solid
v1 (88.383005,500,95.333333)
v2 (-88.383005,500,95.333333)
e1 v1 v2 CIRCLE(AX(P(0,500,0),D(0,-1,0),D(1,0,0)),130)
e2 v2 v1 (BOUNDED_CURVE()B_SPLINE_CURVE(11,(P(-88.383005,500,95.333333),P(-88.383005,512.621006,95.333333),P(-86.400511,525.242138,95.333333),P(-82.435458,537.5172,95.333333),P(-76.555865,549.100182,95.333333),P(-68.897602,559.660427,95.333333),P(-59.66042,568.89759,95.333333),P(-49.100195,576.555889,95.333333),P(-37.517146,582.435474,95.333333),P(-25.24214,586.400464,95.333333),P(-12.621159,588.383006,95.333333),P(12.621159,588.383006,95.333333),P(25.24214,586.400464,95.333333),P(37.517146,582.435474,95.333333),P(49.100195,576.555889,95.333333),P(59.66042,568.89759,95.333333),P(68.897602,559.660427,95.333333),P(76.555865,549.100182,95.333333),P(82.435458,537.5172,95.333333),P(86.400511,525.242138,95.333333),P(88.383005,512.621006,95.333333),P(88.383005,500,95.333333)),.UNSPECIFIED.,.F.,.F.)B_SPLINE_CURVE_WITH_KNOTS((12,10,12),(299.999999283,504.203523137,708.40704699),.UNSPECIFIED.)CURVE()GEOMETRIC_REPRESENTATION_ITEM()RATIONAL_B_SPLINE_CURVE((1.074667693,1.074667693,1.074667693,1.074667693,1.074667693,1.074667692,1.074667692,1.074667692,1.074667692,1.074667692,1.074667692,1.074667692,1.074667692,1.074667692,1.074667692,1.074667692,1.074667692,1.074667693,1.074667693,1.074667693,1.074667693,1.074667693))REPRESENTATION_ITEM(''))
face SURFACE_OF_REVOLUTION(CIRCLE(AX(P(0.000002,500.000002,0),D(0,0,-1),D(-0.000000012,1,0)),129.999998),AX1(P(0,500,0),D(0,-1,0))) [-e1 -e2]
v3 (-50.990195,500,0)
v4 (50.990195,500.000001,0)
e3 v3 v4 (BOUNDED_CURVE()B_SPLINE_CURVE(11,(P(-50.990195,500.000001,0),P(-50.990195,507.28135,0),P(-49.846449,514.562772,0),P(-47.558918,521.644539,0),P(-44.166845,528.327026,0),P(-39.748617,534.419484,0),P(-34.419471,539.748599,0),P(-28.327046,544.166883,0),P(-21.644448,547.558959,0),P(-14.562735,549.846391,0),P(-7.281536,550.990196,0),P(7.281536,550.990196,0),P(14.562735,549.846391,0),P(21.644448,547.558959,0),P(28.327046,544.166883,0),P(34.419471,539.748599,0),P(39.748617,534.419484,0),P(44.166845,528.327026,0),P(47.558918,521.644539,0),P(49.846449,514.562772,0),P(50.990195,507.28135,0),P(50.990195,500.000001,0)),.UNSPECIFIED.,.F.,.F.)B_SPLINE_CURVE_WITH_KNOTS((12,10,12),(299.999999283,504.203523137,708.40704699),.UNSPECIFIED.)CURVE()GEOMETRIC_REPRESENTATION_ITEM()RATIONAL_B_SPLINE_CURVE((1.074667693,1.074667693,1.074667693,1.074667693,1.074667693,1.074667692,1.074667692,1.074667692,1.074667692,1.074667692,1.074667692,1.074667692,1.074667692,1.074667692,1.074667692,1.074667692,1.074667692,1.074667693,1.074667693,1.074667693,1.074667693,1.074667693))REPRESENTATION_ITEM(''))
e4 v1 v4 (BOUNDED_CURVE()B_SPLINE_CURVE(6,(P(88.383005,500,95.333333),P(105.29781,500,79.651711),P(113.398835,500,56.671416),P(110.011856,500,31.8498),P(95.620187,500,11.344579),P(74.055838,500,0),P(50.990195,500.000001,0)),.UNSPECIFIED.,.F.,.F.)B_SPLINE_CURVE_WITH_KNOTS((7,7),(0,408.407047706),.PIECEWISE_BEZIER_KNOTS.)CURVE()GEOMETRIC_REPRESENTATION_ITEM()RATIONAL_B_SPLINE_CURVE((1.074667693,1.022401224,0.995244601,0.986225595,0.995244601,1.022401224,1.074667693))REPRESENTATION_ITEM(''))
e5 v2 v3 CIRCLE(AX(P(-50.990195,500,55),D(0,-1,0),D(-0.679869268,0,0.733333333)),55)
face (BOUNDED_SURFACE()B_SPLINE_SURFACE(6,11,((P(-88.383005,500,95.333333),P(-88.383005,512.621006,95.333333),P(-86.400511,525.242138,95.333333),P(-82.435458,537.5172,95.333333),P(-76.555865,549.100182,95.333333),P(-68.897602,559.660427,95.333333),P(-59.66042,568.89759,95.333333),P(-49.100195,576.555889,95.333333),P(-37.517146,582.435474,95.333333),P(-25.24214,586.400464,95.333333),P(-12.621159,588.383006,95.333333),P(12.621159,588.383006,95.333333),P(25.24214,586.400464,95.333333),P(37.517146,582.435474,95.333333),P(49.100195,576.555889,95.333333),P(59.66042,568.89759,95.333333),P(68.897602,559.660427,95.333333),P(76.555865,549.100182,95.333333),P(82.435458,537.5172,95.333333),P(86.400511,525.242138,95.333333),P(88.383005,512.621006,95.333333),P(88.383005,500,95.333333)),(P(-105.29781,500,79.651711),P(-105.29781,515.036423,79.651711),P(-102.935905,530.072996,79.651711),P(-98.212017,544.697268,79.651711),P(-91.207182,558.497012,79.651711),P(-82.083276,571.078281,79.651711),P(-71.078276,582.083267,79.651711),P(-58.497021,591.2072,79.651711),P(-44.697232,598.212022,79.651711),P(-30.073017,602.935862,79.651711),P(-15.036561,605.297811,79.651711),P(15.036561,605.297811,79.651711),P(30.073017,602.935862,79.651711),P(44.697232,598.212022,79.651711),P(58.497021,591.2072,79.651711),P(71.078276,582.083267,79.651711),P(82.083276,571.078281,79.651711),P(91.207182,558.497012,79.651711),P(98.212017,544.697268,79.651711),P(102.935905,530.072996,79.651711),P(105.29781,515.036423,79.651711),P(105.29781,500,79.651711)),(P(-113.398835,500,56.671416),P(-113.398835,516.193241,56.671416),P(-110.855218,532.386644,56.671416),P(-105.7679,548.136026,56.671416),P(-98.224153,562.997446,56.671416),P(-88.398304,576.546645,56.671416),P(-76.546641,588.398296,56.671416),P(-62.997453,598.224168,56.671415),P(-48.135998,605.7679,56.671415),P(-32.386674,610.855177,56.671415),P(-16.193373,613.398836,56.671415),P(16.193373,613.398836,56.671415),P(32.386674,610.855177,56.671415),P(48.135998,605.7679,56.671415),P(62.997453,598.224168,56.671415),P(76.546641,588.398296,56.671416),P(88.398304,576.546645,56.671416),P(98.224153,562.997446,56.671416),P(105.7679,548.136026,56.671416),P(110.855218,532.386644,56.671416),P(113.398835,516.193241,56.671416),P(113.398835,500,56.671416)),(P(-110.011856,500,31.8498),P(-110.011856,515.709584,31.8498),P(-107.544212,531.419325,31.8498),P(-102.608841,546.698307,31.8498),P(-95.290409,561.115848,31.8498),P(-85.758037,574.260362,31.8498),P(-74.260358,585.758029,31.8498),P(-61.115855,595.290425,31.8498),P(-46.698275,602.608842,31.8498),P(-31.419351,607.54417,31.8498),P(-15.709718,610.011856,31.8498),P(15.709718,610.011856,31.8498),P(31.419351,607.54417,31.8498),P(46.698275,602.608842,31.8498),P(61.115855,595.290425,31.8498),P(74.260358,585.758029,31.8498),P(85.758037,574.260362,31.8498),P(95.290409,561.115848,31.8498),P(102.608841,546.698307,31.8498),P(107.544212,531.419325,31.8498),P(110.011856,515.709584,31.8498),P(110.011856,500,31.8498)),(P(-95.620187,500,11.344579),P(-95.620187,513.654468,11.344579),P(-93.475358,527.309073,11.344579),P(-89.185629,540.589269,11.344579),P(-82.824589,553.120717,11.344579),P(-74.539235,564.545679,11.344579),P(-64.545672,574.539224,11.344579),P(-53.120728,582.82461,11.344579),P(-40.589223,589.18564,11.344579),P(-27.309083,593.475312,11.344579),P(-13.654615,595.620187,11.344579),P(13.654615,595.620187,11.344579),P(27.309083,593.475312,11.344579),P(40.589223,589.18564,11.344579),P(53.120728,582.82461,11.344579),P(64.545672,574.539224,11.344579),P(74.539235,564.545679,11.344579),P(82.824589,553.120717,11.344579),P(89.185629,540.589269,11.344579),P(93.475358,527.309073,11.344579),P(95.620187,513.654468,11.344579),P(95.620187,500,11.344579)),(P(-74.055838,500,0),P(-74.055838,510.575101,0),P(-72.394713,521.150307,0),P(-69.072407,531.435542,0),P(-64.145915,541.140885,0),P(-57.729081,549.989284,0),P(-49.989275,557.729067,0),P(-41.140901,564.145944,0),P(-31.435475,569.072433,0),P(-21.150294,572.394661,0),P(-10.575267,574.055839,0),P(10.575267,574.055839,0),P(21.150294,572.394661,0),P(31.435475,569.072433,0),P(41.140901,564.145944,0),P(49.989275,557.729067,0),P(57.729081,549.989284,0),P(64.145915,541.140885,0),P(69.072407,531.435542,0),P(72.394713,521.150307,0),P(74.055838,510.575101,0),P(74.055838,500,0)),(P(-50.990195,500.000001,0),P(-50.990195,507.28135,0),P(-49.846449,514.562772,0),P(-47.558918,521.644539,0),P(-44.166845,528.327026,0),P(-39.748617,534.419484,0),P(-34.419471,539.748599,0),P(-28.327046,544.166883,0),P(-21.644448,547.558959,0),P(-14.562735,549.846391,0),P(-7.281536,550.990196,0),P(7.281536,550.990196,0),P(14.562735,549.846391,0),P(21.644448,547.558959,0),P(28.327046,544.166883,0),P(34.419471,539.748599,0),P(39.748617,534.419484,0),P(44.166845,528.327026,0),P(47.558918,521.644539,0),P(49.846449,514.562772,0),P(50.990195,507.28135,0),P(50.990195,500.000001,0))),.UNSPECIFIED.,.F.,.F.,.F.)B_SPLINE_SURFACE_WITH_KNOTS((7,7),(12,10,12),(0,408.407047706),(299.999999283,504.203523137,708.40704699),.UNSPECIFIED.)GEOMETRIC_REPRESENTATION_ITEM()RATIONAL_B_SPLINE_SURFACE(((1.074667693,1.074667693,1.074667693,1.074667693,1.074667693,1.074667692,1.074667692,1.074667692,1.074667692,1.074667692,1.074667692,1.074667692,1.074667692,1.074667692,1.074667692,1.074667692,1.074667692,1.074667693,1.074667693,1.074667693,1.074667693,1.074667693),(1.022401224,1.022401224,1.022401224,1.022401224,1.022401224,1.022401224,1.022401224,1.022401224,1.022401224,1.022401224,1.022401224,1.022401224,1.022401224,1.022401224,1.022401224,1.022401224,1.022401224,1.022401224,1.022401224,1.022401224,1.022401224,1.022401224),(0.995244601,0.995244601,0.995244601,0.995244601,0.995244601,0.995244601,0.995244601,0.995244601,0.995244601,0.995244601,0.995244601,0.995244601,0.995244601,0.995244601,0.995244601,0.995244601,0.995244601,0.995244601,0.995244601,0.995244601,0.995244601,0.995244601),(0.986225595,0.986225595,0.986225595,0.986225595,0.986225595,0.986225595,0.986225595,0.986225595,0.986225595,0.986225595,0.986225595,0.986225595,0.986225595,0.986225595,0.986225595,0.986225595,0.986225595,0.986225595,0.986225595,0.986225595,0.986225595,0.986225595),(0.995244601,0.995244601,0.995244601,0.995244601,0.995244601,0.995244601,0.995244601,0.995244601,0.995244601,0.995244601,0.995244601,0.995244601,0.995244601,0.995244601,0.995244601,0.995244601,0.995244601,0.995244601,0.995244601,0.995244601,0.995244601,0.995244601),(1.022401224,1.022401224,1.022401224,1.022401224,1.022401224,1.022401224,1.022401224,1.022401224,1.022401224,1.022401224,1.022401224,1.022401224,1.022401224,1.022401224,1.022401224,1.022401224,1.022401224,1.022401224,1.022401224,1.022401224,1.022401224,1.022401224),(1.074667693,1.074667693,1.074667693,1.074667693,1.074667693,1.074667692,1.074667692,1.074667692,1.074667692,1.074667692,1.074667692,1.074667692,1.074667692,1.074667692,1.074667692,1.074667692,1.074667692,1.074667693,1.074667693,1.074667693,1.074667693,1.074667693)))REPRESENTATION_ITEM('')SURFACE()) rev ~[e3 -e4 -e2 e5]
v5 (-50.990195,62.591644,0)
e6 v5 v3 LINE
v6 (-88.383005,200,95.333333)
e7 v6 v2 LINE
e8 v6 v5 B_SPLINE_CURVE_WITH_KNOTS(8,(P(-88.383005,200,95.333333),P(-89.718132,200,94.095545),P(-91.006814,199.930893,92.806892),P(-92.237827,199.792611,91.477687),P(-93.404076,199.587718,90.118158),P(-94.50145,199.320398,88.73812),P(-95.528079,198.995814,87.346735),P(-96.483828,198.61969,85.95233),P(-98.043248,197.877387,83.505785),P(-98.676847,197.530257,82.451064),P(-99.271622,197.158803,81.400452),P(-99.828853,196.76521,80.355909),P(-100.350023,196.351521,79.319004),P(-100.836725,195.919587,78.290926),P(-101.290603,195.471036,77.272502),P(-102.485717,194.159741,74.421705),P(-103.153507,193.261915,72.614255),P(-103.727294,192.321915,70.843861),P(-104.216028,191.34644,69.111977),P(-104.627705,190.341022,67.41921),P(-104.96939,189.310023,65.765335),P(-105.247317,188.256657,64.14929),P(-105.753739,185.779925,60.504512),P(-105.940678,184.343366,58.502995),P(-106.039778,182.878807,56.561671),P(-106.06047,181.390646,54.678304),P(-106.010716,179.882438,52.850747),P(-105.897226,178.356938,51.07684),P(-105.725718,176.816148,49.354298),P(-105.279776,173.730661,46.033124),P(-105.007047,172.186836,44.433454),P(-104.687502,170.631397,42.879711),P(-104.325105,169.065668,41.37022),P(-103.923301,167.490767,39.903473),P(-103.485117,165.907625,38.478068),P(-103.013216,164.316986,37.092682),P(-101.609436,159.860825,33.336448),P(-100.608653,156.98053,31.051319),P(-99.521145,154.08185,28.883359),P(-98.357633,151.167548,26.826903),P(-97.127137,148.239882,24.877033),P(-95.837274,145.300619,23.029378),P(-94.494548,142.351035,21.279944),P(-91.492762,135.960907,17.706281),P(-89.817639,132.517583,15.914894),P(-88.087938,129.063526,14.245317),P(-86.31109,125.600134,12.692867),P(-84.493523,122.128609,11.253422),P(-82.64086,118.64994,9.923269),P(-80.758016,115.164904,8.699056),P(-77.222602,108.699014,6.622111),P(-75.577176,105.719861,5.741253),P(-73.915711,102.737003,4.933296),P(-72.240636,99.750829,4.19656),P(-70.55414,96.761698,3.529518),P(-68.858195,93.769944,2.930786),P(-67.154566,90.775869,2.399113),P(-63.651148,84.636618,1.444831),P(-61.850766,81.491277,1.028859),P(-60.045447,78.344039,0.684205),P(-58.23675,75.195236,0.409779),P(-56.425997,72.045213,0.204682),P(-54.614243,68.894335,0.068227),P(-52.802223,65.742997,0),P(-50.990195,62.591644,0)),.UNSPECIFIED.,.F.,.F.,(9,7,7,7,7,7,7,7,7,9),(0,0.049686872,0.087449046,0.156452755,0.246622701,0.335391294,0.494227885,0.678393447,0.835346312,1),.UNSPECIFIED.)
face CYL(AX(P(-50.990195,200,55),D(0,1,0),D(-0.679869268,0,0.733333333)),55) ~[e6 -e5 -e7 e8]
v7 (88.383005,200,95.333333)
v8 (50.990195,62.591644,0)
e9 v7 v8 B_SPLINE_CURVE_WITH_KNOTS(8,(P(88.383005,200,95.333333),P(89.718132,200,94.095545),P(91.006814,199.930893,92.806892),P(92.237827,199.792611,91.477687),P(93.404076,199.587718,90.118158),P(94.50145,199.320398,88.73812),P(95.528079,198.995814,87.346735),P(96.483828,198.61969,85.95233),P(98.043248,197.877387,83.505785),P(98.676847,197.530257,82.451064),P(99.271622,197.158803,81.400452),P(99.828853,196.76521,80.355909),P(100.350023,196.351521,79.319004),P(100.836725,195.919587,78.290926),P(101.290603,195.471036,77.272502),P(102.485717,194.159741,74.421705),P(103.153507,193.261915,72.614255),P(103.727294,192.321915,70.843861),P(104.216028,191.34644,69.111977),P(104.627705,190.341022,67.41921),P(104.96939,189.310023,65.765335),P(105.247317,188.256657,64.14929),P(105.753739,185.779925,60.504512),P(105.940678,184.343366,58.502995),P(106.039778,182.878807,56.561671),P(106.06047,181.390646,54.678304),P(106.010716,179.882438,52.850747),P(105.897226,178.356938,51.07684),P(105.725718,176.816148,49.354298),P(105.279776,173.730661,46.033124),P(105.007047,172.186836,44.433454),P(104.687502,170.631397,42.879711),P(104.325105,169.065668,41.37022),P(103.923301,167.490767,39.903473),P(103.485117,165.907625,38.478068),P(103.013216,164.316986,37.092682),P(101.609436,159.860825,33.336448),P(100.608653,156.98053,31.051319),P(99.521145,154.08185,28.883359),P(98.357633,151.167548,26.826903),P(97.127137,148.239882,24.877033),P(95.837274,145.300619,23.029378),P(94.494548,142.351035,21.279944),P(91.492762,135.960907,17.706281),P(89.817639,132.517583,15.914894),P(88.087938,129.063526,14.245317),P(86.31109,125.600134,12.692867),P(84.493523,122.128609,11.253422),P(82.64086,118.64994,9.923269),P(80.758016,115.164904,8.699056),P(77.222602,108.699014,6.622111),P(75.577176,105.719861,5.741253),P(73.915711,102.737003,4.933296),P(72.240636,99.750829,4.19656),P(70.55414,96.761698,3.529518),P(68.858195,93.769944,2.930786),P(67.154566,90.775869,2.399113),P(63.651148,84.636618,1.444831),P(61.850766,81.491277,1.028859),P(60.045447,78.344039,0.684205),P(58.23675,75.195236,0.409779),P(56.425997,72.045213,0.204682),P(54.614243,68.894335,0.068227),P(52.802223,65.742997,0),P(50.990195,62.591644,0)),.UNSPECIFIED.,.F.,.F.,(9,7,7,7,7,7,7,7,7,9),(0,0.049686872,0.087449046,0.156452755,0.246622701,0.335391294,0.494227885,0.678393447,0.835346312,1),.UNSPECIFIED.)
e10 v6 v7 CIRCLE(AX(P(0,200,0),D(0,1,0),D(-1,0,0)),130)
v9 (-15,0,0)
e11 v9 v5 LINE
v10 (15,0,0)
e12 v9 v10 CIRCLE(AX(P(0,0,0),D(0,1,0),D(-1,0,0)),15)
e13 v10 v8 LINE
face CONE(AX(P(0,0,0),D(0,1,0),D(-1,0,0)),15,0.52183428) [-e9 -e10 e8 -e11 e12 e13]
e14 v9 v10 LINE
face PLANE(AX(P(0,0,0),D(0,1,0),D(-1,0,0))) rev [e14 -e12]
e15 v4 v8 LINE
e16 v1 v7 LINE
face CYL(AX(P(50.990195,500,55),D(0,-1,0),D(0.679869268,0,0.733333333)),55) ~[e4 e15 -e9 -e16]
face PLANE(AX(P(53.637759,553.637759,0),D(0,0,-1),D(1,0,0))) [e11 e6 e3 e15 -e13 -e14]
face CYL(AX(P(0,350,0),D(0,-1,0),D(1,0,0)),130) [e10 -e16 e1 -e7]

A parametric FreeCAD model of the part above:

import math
import FreeCAD as App
import Part
import Sketcher

V = App.Vector
Q = App.Units.Quantity


def edges_at(feature, points):
    """Names of the edges that pass closest to the given points."""
    edges = feature.Shape.Edges
    near = lambda p: min(range(len(edges)), key=lambda i: edges[i].distToShape(Part.Vertex(*p))[0])
    return sorted({f"Edge{near(p) + 1}" for p in points})


def add_polygon(sketch, points):
    """Adds a closed chain of lines whose ends are joined by coincident constraints."""
    first, n = sketch.GeometryCount, len(points)
    for a, b in zip(points, points[1:] + points[:1]):
        sketch.addGeometry(Part.LineSegment(App.Vector(*a, 0), App.Vector(*b, 0)), False)
    for i in range(n):
        sketch.addConstraint(Sketcher.Constraint("Coincident", first + i, 2, first + (i + 1) % n, 1))

doc = App.newDocument("Part")
body = doc.addObject("PartDesign::Body", "Body")

# Sketch on XY plane
sketch1 = body.newObject("Sketcher::SketchObject", "Sketch")
sketch1.AttachmentSupport = (doc.getObject("XY_Plane"), [""])
sketch1.MapMode = "FlatFace"
add_polygon(sketch1, [(0, 200), (0, 500), (130, 500), (130, 200)])  # lines 0-3
sketch1.addConstraint([
    Sketcher.Constraint("Vertical", 0),
    Sketcher.Constraint("Horizontal", 1),
    Sketcher.Constraint("Vertical", 2),
    Sketcher.Constraint("Horizontal", 3),
    Sketcher.Constraint("PointOnObject", 0, 2, -2),
    Sketcher.Constraint("DistanceX", 1, 1, 1, 2, Q("130 mm")),
    Sketcher.Constraint("DistanceY", 0, 1, 0, 2, Q("300 mm")),
    Sketcher.Constraint("DistanceY", -1, 1, 0, 2, Q("500 mm")),
])
revolution = body.newObject("PartDesign::Revolution", "Revolution")
revolution.Profile = sketch1
revolution.ReferenceAxis = (sketch1, ["V_Axis"])
revolution.Angle = 180
revolution.Reversed = True
body2 = doc.addObject("PartDesign::Body", "Body001")

# Sketch on XY plane
sketch2 = body2.newObject("Sketcher::SketchObject", "Sketch001")
sketch2.AttachmentSupport = (doc.getObject("XY_Plane001"), [""])
sketch2.MapMode = "FlatFace"
sketch2.addGeometry([
    Part.ArcOfCircle(Part.Circle(V(0.000002, 500.000002, 0), V(0, 0, 1), 129.999998), math.radians(-0.000001), math.radians(90.000001)),
    Part.LineSegment(V(130, 500, 0), V(0, 500, 0)),
    Part.LineSegment(V(0, 500, 0), V(0, 630, 0)),
], False)
sketch2.addConstraint([
    Sketcher.Constraint("Coincident", 0, 1, 1, 1),
    Sketcher.Constraint("Coincident", 1, 2, 2, 1),
    Sketcher.Constraint("Coincident", 2, 2, 0, 2),
    Sketcher.Constraint("Horizontal", 1),
    Sketcher.Constraint("Vertical", 2),
    Sketcher.Constraint("Coincident", 1, 2, 0, 3),
    Sketcher.Constraint("PointOnObject", 0, 3, -2),
    Sketcher.Constraint("Radius", 0, Q("129.999998 mm")),
    Sketcher.Constraint("DistanceY", -1, 1, 0, 3, Q("500.000002 mm")),
])
revolution2 = body2.newObject("PartDesign::Revolution", "Revolution001")
revolution2.Profile = sketch2
revolution2.ReferenceAxis = (sketch2, ["V_Axis"])
revolution2.Angle = 180
revolution2.Reversed = True
body3 = doc.addObject("PartDesign::Body", "Body002")

# Sketch on XY plane
sketch3 = body3.newObject("Sketcher::SketchObject", "Sketch002")
sketch3.AttachmentSupport = (doc.getObject("XY_Plane002"), [""])
sketch3.MapMode = "FlatFace"
add_polygon(sketch3, [(0, 0), (-15, 0), (-130, 200), (0, 200)])  # lines 0-3
sketch3.addConstraint([
    Sketcher.Constraint("Horizontal", 0),
    Sketcher.Constraint("Horizontal", 2),
    Sketcher.Constraint("Vertical", 3),
    Sketcher.Constraint("Coincident", 3, 2, -1, 1),
    Sketcher.Constraint("DistanceX", 0, 2, 0, 1, Q("15 mm")),
    Sketcher.Constraint("DistanceX", 2, 1, 2, 2, Q("130 mm")),
    Sketcher.Constraint("DistanceY", 3, 2, 3, 1, Q("200 mm")),
])
revolution3 = body3.newObject("PartDesign::Revolution", "Revolution002")
revolution3.Profile = sketch3
revolution3.ReferenceAxis = (sketch3, ["V_Axis"])
revolution3.Angle = 180
doc.recompute()

boolean = body3.newObject("PartDesign::Boolean", "Boolean")
boolean.Type = "Fuse"
boolean.addObjects([body])
doc.recompute()

boolean2 = body3.newObject("PartDesign::Boolean", "Boolean001")
boolean2.Type = "Fuse"
boolean2.addObjects([body2])
doc.recompute()

fillet = body3.newObject("PartDesign::Fillet", "Fillet")
fillet.Base = (boolean2, edges_at(boolean2, [(130, 350, 0)]))
fillet.Radius = 55

doc.recompute()
